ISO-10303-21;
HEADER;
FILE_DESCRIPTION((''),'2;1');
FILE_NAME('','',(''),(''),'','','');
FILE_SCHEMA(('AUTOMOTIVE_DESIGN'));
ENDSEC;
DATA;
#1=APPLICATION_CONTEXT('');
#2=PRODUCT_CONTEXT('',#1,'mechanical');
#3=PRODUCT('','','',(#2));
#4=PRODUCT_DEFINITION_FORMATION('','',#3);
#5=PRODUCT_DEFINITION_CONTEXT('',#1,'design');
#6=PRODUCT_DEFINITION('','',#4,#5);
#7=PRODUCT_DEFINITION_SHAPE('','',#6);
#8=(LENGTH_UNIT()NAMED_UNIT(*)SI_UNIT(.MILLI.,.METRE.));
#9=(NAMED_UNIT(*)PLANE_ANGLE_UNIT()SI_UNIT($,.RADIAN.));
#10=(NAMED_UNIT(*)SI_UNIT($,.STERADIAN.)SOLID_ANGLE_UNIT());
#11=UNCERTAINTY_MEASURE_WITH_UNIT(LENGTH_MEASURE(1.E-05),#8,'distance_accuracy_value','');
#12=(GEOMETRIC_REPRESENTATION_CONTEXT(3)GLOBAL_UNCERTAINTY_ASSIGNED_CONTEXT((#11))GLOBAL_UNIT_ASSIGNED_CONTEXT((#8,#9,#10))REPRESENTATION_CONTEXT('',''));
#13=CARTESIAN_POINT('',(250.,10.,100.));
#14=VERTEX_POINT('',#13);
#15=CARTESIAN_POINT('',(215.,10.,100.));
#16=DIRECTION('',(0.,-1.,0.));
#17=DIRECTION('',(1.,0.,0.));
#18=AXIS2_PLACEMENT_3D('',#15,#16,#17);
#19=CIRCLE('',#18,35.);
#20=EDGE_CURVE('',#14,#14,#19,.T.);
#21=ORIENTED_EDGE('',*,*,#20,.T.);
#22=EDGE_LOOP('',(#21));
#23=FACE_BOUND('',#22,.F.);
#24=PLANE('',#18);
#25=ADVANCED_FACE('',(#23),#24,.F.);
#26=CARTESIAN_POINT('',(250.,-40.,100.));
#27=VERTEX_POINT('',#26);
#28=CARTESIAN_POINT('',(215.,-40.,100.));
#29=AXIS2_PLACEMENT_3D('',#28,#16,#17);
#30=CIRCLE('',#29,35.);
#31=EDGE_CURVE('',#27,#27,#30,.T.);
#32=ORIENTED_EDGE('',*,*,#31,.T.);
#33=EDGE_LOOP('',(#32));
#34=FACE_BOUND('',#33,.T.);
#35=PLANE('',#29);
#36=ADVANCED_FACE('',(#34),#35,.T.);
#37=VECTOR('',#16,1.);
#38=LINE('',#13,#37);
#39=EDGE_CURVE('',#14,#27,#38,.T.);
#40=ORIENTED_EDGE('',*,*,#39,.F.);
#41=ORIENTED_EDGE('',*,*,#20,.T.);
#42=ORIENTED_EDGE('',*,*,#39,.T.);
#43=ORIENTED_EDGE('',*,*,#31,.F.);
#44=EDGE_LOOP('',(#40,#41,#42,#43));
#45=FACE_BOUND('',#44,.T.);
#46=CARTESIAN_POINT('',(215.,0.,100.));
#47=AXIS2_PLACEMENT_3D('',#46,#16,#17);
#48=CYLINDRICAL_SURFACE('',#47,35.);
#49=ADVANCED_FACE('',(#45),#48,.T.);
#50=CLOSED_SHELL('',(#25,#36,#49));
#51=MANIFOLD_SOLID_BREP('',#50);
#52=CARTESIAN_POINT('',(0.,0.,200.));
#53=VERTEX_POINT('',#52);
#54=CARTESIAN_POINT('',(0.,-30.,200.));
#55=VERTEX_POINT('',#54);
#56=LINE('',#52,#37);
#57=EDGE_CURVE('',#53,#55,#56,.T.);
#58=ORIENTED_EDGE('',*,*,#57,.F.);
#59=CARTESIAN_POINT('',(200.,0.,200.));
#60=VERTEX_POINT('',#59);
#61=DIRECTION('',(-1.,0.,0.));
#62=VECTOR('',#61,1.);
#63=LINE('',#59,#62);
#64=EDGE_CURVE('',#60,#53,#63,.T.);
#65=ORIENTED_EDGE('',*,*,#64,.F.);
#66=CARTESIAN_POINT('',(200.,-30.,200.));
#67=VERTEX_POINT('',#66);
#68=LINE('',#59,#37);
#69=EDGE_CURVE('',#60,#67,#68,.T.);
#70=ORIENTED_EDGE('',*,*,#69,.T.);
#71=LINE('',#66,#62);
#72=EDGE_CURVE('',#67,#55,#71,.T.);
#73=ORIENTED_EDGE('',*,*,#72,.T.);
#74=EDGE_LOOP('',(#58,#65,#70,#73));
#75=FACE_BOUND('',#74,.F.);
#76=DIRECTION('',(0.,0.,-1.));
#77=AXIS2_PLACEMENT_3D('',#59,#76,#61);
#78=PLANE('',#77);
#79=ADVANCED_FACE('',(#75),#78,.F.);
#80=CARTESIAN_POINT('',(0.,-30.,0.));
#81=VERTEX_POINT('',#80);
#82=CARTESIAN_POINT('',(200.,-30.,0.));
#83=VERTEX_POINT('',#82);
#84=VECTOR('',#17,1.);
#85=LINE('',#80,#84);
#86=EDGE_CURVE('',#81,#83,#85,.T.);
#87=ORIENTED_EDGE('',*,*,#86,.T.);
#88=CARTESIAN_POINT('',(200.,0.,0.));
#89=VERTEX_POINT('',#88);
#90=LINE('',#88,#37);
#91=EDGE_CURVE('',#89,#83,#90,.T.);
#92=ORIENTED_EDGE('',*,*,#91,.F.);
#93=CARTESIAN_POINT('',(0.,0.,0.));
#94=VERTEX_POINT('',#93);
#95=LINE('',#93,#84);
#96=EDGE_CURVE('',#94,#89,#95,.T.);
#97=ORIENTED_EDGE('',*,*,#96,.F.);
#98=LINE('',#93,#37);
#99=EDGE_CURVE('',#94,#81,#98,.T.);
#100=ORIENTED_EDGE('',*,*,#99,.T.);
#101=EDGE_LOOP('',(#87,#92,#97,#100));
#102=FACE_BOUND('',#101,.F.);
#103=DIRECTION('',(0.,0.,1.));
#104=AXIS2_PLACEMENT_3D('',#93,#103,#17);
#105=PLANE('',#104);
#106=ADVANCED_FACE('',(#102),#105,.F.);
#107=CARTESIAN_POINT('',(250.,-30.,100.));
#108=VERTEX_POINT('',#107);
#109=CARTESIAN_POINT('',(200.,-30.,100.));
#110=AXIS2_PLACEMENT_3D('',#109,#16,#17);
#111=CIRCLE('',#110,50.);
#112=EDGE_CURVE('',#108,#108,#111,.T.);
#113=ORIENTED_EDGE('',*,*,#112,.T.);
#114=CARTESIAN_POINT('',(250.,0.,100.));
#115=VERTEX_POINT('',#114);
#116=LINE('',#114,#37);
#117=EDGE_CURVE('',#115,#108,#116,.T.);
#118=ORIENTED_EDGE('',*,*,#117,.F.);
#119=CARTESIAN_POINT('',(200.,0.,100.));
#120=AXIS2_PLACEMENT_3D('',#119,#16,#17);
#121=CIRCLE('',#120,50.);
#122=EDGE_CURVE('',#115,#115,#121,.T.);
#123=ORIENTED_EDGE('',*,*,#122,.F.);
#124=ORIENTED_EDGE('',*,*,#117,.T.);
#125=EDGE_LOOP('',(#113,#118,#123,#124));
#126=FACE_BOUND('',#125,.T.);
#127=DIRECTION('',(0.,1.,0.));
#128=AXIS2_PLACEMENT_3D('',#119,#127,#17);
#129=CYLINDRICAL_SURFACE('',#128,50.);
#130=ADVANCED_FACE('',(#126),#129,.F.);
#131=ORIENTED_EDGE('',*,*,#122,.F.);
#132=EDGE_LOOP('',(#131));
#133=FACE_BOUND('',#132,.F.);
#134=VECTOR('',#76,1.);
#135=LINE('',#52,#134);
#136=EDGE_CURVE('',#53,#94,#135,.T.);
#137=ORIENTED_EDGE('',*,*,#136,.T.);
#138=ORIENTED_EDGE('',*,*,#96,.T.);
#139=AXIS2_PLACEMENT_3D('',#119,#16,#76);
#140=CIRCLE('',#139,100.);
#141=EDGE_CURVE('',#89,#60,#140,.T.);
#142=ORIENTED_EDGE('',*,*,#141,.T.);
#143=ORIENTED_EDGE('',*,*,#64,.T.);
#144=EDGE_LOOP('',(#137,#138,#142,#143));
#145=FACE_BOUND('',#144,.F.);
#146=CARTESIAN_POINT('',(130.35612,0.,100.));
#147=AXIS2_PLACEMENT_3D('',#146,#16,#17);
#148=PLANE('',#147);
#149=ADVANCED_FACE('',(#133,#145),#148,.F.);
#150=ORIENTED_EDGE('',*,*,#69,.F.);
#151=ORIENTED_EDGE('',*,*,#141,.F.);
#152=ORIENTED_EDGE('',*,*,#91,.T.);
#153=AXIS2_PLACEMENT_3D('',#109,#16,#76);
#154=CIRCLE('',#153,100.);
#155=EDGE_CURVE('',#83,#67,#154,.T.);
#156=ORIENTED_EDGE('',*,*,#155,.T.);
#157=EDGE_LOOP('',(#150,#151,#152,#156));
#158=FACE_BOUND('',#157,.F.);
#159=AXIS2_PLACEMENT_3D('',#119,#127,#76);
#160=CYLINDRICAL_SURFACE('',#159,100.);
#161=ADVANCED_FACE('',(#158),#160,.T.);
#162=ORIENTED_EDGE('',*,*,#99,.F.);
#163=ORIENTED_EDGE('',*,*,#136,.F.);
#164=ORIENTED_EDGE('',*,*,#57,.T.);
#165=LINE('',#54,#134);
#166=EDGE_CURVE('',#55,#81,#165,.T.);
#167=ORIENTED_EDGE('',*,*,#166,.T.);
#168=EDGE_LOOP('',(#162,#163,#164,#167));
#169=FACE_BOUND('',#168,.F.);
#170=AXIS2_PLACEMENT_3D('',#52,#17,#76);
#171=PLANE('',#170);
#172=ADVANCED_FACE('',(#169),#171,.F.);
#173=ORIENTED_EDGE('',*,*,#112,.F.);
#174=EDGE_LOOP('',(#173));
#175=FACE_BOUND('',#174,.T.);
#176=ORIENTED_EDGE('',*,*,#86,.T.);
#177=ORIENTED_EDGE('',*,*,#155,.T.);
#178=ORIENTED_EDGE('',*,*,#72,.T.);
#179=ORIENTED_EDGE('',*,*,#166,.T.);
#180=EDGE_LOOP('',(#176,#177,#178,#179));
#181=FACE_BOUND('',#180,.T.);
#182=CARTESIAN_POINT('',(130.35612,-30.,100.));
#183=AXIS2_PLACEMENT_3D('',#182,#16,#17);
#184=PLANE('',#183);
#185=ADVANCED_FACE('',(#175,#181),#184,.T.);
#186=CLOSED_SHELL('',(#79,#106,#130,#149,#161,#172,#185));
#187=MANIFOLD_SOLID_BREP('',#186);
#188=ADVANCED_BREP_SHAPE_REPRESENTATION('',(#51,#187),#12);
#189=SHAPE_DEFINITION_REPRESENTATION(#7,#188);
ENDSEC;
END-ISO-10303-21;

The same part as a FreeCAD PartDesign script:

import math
import FreeCAD as App
import Part
import Sketcher
from FreeCAD import Vector

doc = App.newDocument("Part")
body = doc.addObject("PartDesign::Body", "Body")

# Sketch on XZ plane
sketch1 = body.newObject("Sketcher::SketchObject", "Sketch")
sketch1.AttachmentSupport = (doc.getObject("XZ_Plane"), [""])
sketch1.MapMode = "FlatFace"
sketch1.addGeometry(Part.LineSegment(Vector(0, 200, 0), Vector(0, 0, 0)), False)
sketch1.addGeometry(Part.LineSegment(Vector(0, 0, 0), Vector(200, 0, 0)), False)
sketch1.addGeometry(Part.ArcOfCircle(Part.Circle(Vector(200, 100, 0), Vector(0, 0, 1), 100), math.radians(-90), math.radians(90)), False)
sketch1.addGeometry(Part.LineSegment(Vector(200, 200, 0), Vector(0, 200, 0)), False)
sketch1.addGeometry(Part.Circle(Vector(200, 100, 0), Vector(0, 0, 1), 50), False)
sketch1.addConstraint(Sketcher.Constraint("Coincident", 0, 2, 1, 1))
sketch1.addConstraint(Sketcher.Constraint("Tangent", 1, 2, 2, 1))
sketch1.addConstraint(Sketcher.Constraint("Tangent", 2, 2, 3, 1))
sketch1.addConstraint(Sketcher.Constraint("Coincident", 3, 2, 0, 1))
sketch1.addConstraint(Sketcher.Constraint("Vertical", 0))
sketch1.addConstraint(Sketcher.Constraint("Horizontal", 1))
sketch1.addConstraint(Sketcher.Constraint("Horizontal", 3))
sketch1.addConstraint(Sketcher.Constraint("Coincident", 0, 2, -1, 1))
sketch1.addConstraint(Sketcher.Constraint("Coincident", 4, 3, 2, 3))
sketch1.addConstraint(Sketcher.Constraint("Equal", 3, 0))
sketch1.addConstraint(Sketcher.Constraint("Diameter", 4, 100.0))
sketch1.addConstraint(Sketcher.Constraint("Radius", 2, 100.0))
pad1 = body.newObject("PartDesign::Pad", "Pad")
pad1.Profile = sketch1
pad1.Length = 30
body2 = doc.addObject("PartDesign::Body", "Body001")

# Sketch on XZ plane
sketch2 = body2.newObject("Sketcher::SketchObject", "Sketch001")
sketch2.AttachmentSupport = (doc.getObject("XZ_Plane001"), [""])
sketch2.MapMode = "FlatFace"
sketch2.addGeometry(Part.Circle(Vector(215, 100, 0), Vector(0, 0, 1), 35), False)
sketch2.addConstraint(Sketcher.Constraint("Diameter", 0, 70.0))
sketch2.addConstraint(Sketcher.Constraint("DistanceX", -1, 1, 0, 3, 215.0))
sketch2.addConstraint(Sketcher.Constraint("DistanceY", -1, 1, 0, 3, 100.0))
pad2 = body2.newObject("PartDesign::Pad", "Pad001")
pad2.Profile = sketch2
pad2.Type = "TwoLengths"
pad2.Length = 40
pad2.Length2 = 10

doc.recompute()
